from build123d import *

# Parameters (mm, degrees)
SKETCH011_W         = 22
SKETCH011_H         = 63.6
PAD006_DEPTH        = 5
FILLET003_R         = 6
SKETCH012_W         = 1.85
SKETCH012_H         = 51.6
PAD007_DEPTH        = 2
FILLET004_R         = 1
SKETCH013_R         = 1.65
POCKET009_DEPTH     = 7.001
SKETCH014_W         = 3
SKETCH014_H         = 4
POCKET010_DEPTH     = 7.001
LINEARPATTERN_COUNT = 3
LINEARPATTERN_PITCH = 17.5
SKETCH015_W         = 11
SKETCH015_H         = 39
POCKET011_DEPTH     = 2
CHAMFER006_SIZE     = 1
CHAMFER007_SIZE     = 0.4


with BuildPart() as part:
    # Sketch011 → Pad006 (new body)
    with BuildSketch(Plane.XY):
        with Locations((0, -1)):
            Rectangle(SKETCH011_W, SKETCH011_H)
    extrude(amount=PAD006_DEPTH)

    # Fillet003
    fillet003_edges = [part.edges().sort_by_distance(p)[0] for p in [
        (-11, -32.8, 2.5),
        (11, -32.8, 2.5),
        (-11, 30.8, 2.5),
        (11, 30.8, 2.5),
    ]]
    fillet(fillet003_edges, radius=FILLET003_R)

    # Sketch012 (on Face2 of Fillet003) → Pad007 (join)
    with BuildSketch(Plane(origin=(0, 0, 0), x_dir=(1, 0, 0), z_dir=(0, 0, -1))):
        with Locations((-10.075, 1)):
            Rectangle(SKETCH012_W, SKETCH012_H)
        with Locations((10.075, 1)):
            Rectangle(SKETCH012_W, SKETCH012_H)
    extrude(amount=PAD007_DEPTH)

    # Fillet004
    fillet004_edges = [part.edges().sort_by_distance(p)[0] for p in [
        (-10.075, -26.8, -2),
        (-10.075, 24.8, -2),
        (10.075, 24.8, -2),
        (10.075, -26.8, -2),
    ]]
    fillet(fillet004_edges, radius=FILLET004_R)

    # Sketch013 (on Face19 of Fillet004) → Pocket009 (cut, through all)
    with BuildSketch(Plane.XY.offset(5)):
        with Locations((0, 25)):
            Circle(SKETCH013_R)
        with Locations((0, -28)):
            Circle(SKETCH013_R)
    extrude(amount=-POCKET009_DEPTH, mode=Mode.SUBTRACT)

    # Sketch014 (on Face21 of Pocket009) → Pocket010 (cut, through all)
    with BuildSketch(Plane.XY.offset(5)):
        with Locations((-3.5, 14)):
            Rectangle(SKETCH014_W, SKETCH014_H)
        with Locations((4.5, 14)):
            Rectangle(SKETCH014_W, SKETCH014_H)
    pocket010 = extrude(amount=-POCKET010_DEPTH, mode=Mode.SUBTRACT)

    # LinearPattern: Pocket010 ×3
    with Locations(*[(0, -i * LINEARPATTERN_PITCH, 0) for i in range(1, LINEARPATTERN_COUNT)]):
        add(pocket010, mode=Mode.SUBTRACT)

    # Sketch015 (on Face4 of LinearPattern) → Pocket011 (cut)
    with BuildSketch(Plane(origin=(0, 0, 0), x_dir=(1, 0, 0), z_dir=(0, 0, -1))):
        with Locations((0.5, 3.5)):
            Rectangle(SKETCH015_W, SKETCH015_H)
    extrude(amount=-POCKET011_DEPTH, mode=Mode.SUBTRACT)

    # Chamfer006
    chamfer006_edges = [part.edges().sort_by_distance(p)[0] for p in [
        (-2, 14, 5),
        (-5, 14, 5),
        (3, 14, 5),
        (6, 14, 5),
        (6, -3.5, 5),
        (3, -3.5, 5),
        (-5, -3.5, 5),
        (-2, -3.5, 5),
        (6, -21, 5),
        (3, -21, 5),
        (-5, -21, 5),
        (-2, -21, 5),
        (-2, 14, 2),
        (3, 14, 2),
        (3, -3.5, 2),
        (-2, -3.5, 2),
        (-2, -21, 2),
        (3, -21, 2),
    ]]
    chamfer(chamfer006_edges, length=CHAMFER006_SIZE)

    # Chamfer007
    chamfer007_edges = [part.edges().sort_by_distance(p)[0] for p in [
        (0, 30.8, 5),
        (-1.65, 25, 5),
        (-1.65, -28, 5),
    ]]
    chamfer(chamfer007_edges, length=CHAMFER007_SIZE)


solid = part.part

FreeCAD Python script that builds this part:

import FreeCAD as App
import Part
import Sketcher


def edges_at(feature, points):
    """Names of the edges that pass closest to the given points."""
    edges = feature.Shape.Edges
    near = lambda p: min(range(len(edges)), key=lambda i: edges[i].distToShape(Part.Vertex(*p))[0])
    return sorted({f"Edge{near(p) + 1}" for p in points})

doc = App.newDocument("Part")
params = doc.addObject("Spreadsheet::Sheet", "Params")
for row, (alias, value) in enumerate([
    ("sketch1_width", "22 mm"),
    ("sketch1_height", "63.6 mm"),
    ("pad1_length", "5 mm"),
    ("fillet_radius", "6 mm"),
    ("sketch2_height", "51.6 mm"),
    ("sketch2_width", "1.85 mm"),
    ("pad2_length", "2 mm"),
    ("fillet2_radius", "1 mm"),
    ("sketch3_diameter", "3.3 mm"),
    ("sketch4_width", "3 mm"),
    ("sketch4_height", "4 mm"),
    ("linearpattern_pitch", "17.5 mm"),
    ("sketch5_width", "11 mm"),
    ("sketch5_height", "39 mm"),
    ("pocket3_length", "2 mm"),
    ("chamfer_size", "1 mm"),
    ("chamfer2_size", "0.4 mm"),
], start=1):
    params.set(f"A{row}", alias)
    params.set(f"B{row}", "=" + value)
    params.setAlias(f"B{row}", alias)

body = doc.addObject("PartDesign::Body", "Body")

sketch1 = doc.addObject("Sketcher::SketchObject", "Sketch")
body.addObject(sketch1)
sketch1.AttachmentSupport = (doc.XY_Plane, [""])
sketch1.MapMode = "FlatFace"
sketch1.addGeometry(Part.LineSegment(App.Vector(-11, 30.8, 0), App.Vector(-11, -32.8, 0)), False)
sketch1.addGeometry(Part.LineSegment(App.Vector(-11, -32.8, 0), App.Vector(11, -32.8, 0)), False)
sketch1.addGeometry(Part.LineSegment(App.Vector(11, -32.8, 0), App.Vector(11, 30.8, 0)), False)
sketch1.addGeometry(Part.LineSegment(App.Vector(11, 30.8, 0), App.Vector(-11, 30.8, 0)), False)
sketch1.addConstraint(Sketcher.Constraint("Coincident", 0, 2, 1, 1))
sketch1.addConstraint(Sketcher.Constraint("Coincident", 1, 2, 2, 1))
sketch1.addConstraint(Sketcher.Constraint("Coincident", 2, 2, 3, 1))
sketch1.addConstraint(Sketcher.Constraint("Coincident", 3, 2, 0, 1))
sketch1.addConstraint(Sketcher.Constraint("Vertical", 0))
sketch1.addConstraint(Sketcher.Constraint("Horizontal", 1))
sketch1.addConstraint(Sketcher.Constraint("Vertical", 2))
sketch1.addConstraint(Sketcher.Constraint("Horizontal", 3))
sketch1.addConstraint(Sketcher.Constraint("DistanceX", 1, 1, 1, 2, 22.0))
sketch1.addConstraint(Sketcher.Constraint("DistanceY", 0, 2, 0, 1, 63.6))
sketch1.addConstraint(Sketcher.Constraint("DistanceX", 0, 2, -1, 1, 11.0))
sketch1.addConstraint(Sketcher.Constraint("DistanceY", 0, 2, -1, 1, 32.8))
sketch1.setExpression("Constraints[8]", "Params.sketch1_width")
sketch1.setExpression("Constraints[9]", "Params.sketch1_height")
pad1 = doc.addObject("PartDesign::Pad", "Pad")
body.addObject(pad1)
pad1.Profile = sketch1
pad1.setExpression("Length", "Params.pad1_length")
doc.recompute()

fillet = doc.addObject("PartDesign::Fillet", "Fillet")
body.addObject(fillet)
fillet.Base = (pad1, edges_at(pad1, [
    (-11, -32.8, 2.5),
    (11, -32.8, 2.5),
    (-11, 30.8, 2.5),
    (11, 30.8, 2.5),
]))
fillet.setExpression("Radius", "Params.fillet_radius")

sketch2 = doc.addObject("Sketcher::SketchObject", "Sketch001")
body.addObject(sketch2)
sketch2.AttachmentSupport = (doc.XY_Plane, [""])
sketch2.MapMode = "FlatFace"
sketch2.addGeometry(Part.LineSegment(App.Vector(-11, -26.8, 0), App.Vector(-11, 24.8, 0)), False)
sketch2.addGeometry(Part.LineSegment(App.Vector(-11, 24.8, 0), App.Vector(-9.15, 24.8, 0)), False)
sketch2.addGeometry(Part.LineSegment(App.Vector(-9.15, 24.8, 0), App.Vector(-9.15, -26.8, 0)), False)
sketch2.addGeometry(Part.LineSegment(App.Vector(-9.15, -26.8, 0), App.Vector(-11, -26.8, 0)), False)
sketch2.addGeometry(Part.LineSegment(App.Vector(9.15, -26.8, 0), App.Vector(9.15, 24.8, 0)), False)
sketch2.addGeometry(Part.LineSegment(App.Vector(9.15, 24.8, 0), App.Vector(11, 24.8, 0)), False)
sketch2.addGeometry(Part.LineSegment(App.Vector(11, 24.8, 0), App.Vector(11, -26.8, 0)), False)
sketch2.addGeometry(Part.LineSegment(App.Vector(11, -26.8, 0), App.Vector(9.15, -26.8, 0)), False)
sketch2.addConstraint(Sketcher.Constraint("Coincident", 0, 2, 1, 1))
sketch2.addConstraint(Sketcher.Constraint("Coincident", 1, 2, 2, 1))
sketch2.addConstraint(Sketcher.Constraint("Coincident", 2, 2, 3, 1))
sketch2.addConstraint(Sketcher.Constraint("Coincident", 3, 2, 0, 1))
sketch2.addConstraint(Sketcher.Constraint("Coincident", 4, 2, 5, 1))
sketch2.addConstraint(Sketcher.Constraint("Coincident", 5, 2, 6, 1))
sketch2.addConstraint(Sketcher.Constraint("Coincident", 6, 2, 7, 1))
sketch2.addConstraint(Sketcher.Constraint("Coincident", 7, 2, 4, 1))
sketch2.addConstraint(Sketcher.Constraint("Vertical", 0))
sketch2.addConstraint(Sketcher.Constraint("Horizontal", 1))
sketch2.addConstraint(Sketcher.Constraint("Vertical", 2))
sketch2.addConstraint(Sketcher.Constraint("Horizontal", 3))
sketch2.addConstraint(Sketcher.Constraint("Vertical", 4))
sketch2.addConstraint(Sketcher.Constraint("Horizontal", 5))
sketch2.addConstraint(Sketcher.Constraint("Vertical", 6))
sketch2.addConstraint(Sketcher.Constraint("Horizontal", 7))
sketch2.addConstraint(Sketcher.Constraint("Symmetric", 1, 2, 4, 2, -2))
sketch2.addConstraint(Sketcher.Constraint("Symmetric", 3, 2, 6, 2, -2))
sketch2.addConstraint(Sketcher.Constraint("DistanceY", 0, 1, 0, 2, 51.6))
sketch2.addConstraint(Sketcher.Constraint("DistanceX", 0, 2, -1, 1, 11.0))
sketch2.addConstraint(Sketcher.Constraint("DistanceX", 1, 1, 1, 2, 1.85))
sketch2.addConstraint(Sketcher.Constraint("DistanceY", -1, 1, 0, 2, 24.8))
sketch2.setExpression("Constraints[18]", "Params.sketch2_height")
sketch2.setExpression("Constraints[20]", "Params.sketch2_width")
pad2 = doc.addObject("PartDesign::Pad", "Pad001")
body.addObject(pad2)
pad2.Profile = sketch2
pad2.setExpression("Length", "Params.pad2_length")
pad2.Reversed = True
doc.recompute()

fillet2 = doc.addObject("PartDesign::Fillet", "Fillet001")
body.addObject(fillet2)
fillet2.Base = (pad2, edges_at(pad2, [
    (-10.075, -26.8, -2),
    (-10.075, 24.8, -2),
    (10.075, 24.8, -2),
    (10.075, -26.8, -2),
]))
fillet2.setExpression("Radius", "Params.fillet2_radius")

sketch3 = doc.addObject("Sketcher::SketchObject", "Sketch002")
body.addObject(sketch3)
sketch3.AttachmentSupport = (doc.XY_Plane, [""])
sketch3.MapMode = "FlatFace"
sketch3.AttachmentOffset = App.Placement(App.Vector(0, 0, 5), App.Rotation())
sketch3.addGeometry(Part.Circle(App.Vector(0, 25, 0), App.Vector(0, 0, 1), 1.65), False)
sketch3.addGeometry(Part.Circle(App.Vector(0, -28, 0), App.Vector(0, 0, 1), 1.65), False)
sketch3.addConstraint(Sketcher.Constraint("Equal", 0, 1))
sketch3.addConstraint(Sketcher.Constraint("PointOnObject", 0, 3, -2))
sketch3.addConstraint(Sketcher.Constraint("PointOnObject", 1, 3, -2))
sketch3.addConstraint(Sketcher.Constraint("Diameter", 0, 3.3))
sketch3.addConstraint(Sketcher.Constraint("DistanceY", -1, 1, 0, 3, 25.0))
sketch3.addConstraint(Sketcher.Constraint("DistanceY", 1, 3, -1, 1, 28.0))
sketch3.setExpression("Constraints[3]", "Params.sketch3_diameter")
pocket1 = doc.addObject("PartDesign::Pocket", "Pocket")
body.addObject(pocket1)
pocket1.Profile = sketch3
pocket1.Type = "ThroughAll"

sketch4 = doc.addObject("Sketcher::SketchObject", "Sketch003")
body.addObject(sketch4)
sketch4.AttachmentSupport = (doc.XY_Plane, [""])
sketch4.MapMode = "FlatFace"
sketch4.AttachmentOffset = App.Placement(App.Vector(0, 0, 5), App.Rotation())
sketch4.addGeometry(Part.LineSegment(App.Vector(-5, 16, 0), App.Vector(-5, 12, 0)), False)
sketch4.addGeometry(Part.LineSegment(App.Vector(-5, 12, 0), App.Vector(-2, 12, 0)), False)
sketch4.addGeometry(Part.LineSegment(App.Vector(-2, 12, 0), App.Vector(-2, 16, 0)), False)
sketch4.addGeometry(Part.LineSegment(App.Vector(-2, 16, 0), App.Vector(-5, 16, 0)), False)
sketch4.addGeometry(Part.LineSegment(App.Vector(3, 16, 0), App.Vector(3, 12, 0)), False)
sketch4.addGeometry(Part.LineSegment(App.Vector(3, 12, 0), App.Vector(6, 12, 0)), False)
sketch4.addGeometry(Part.LineSegment(App.Vector(6, 12, 0), App.Vector(6, 16, 0)), False)
sketch4.addGeometry(Part.LineSegment(App.Vector(6, 16, 0), App.Vector(3, 16, 0)), False)
sketch4.addConstraint(Sketcher.Constraint("Coincident", 0, 2, 1, 1))
sketch4.addConstraint(Sketcher.Constraint("Coincident", 1, 2, 2, 1))
sketch4.addConstraint(Sketcher.Constraint("Coincident", 2, 2, 3, 1))
sketch4.addConstraint(Sketcher.Constraint("Coincident", 3, 2, 0, 1))
sketch4.addConstraint(Sketcher.Constraint("Coincident", 4, 2, 5, 1))
sketch4.addConstraint(Sketcher.Constraint("Coincident", 5, 2, 6, 1))
sketch4.addConstraint(Sketcher.Constraint("Coincident", 6, 2, 7, 1))
sketch4.addConstraint(Sketcher.Constraint("Coincident", 7, 2, 4, 1))
sketch4.addConstraint(Sketcher.Constraint("Vertical", 0))
sketch4.addConstraint(Sketcher.Constraint("Horizontal", 1))
sketch4.addConstraint(Sketcher.Constraint("Vertical", 2))
sketch4.addConstraint(Sketcher.Constraint("Horizontal", 3))
sketch4.addConstraint(Sketcher.Constraint("Vertical", 4))
sketch4.addConstraint(Sketcher.Constraint("Horizontal", 5))
sketch4.addConstraint(Sketcher.Constraint("Vertical", 6))
sketch4.addConstraint(Sketcher.Constraint("Horizontal", 7))
sketch4.addConstraint(Sketcher.Constraint("Horizontal", 1, 2, 4, 2))
sketch4.addConstraint(Sketcher.Constraint("Horizontal", 3, 2, 6, 2))
sketch4.addConstraint(Sketcher.Constraint("Equal", 3, 5))
sketch4.addConstraint(Sketcher.Constraint("DistanceX", 1, 1, 1, 2, 3.0))
sketch4.addConstraint(Sketcher.Constraint("DistanceY", 0, 2, 0, 1, 4.0))
sketch4.addConstraint(Sketcher.Constraint("DistanceX", 0, 2, -1, 1, 5.0))
sketch4.addConstraint(Sketcher.Constraint("DistanceY", -1, 1, 0, 2, 12.0))
sketch4.addConstraint(Sketcher.Constraint("DistanceX", -1, 1, 4, 2, 3.0))
sketch4.setExpression("Constraints[19]", "Params.sketch4_width")
sketch4.setExpression("Constraints[20]", "Params.sketch4_height")
pocket2 = doc.addObject("PartDesign::Pocket", "Pocket001")
body.addObject(pocket2)
pocket2.Profile = sketch4
pocket2.Type = "ThroughAll"
doc.recompute()

linearpattern = doc.addObject("PartDesign::LinearPattern", "LinearPattern")
body.addObject(linearpattern)
linearpattern.Originals = [pocket2]
linearpattern.Direction = (doc.Y_Axis, [""])
linearpattern.Mode = "offset"
linearpattern.setExpression("Offset", "Params.linearpattern_pitch")
linearpattern.Occurrences = 3
linearpattern.Reversed = True
body.Tip = linearpattern

sketch5 = doc.addObject("Sketcher::SketchObject", "Sketch004")
body.addObject(sketch5)
sketch5.AttachmentSupport = (doc.XY_Plane, [""])
sketch5.MapMode = "FlatFace"
sketch5.addGeometry(Part.LineSegment(App.Vector(-5, -23, 0), App.Vector(-5, 16, 0)), False)
sketch5.addGeometry(Part.LineSegment(App.Vector(-5, 16, 0), App.Vector(6, 16, 0)), False)
sketch5.addGeometry(Part.LineSegment(App.Vector(6, 16, 0), App.Vector(6, -23, 0)), False)
sketch5.addGeometry(Part.LineSegment(App.Vector(6, -23, 0), App.Vector(-5, -23, 0)), False)
sketch5.addConstraint(Sketcher.Constraint("Coincident", 0, 2, 1, 1))
sketch5.addConstraint(Sketcher.Constraint("Coincident", 1, 2, 2, 1))
sketch5.addConstraint(Sketcher.Constraint("Coincident", 2, 2, 3, 1))
sketch5.addConstraint(Sketcher.Constraint("Coincident", 3, 2, 0, 1))
sketch5.addConstraint(Sketcher.Constraint("Vertical", 0))
sketch5.addConstraint(Sketcher.Constraint("Horizontal", 1))
sketch5.addConstraint(Sketcher.Constraint("Vertical", 2))
sketch5.addConstraint(Sketcher.Constraint("Horizontal", 3))
sketch5.addConstraint(Sketcher.Constraint("DistanceX", 1, 1, 1, 2, 11.0))
sketch5.addConstraint(Sketcher.Constraint("DistanceY", 0, 1, 0, 2, 39.0))
sketch5.addConstraint(Sketcher.Constraint("DistanceX", 0, 2, -1, 1, 5.0))
sketch5.addConstraint(Sketcher.Constraint("DistanceY", -1, 1, 0, 2, 16.0))
sketch5.setExpression("Constraints[8]", "Params.sketch5_width")
sketch5.setExpression("Constraints[9]", "Params.sketch5_height")
pocket3 = doc.addObject("PartDesign::Pocket", "Pocket002")
body.addObject(pocket3)
pocket3.Profile = sketch5
pocket3.setExpression("Length", "Params.pocket3_length")
pocket3.Reversed = True
doc.recompute()

chamfer = doc.addObject("PartDesign::Chamfer", "Chamfer")
body.addObject(chamfer)
chamfer.Base = (pocket3, edges_at(pocket3, [
    (-2, 14, 5),
    (-5, 14, 5),
    (3, 14, 5),
    (6, 14, 5),
    (6, -3.5, 5),
    (3, -3.5, 5),
    (-5, -3.5, 5),
    (-2, -3.5, 5),
    (6, -21, 5),
    (3, -21, 5),
    (-5, -21, 5),
    (-2, -21, 5),
    (-2, 14, 2),
    (3, 14, 2),
    (3, -3.5, 2),
    (-2, -3.5, 2),
    (-2, -21, 2),
    (3, -21, 2),
]))
chamfer.setExpression("Size", "Params.chamfer_size")
doc.recompute()

chamfer2 = doc.addObject("PartDesign::Chamfer", "Chamfer001")
body.addObject(chamfer2)
chamfer2.Base = (chamfer, edges_at(chamfer, [(0, 30.8, 5), (-1.65, 25, 5), (-1.65, -28, 5)]))
chamfer2.setExpression("Size", "Params.chamfer2_size")

doc.recompute()
